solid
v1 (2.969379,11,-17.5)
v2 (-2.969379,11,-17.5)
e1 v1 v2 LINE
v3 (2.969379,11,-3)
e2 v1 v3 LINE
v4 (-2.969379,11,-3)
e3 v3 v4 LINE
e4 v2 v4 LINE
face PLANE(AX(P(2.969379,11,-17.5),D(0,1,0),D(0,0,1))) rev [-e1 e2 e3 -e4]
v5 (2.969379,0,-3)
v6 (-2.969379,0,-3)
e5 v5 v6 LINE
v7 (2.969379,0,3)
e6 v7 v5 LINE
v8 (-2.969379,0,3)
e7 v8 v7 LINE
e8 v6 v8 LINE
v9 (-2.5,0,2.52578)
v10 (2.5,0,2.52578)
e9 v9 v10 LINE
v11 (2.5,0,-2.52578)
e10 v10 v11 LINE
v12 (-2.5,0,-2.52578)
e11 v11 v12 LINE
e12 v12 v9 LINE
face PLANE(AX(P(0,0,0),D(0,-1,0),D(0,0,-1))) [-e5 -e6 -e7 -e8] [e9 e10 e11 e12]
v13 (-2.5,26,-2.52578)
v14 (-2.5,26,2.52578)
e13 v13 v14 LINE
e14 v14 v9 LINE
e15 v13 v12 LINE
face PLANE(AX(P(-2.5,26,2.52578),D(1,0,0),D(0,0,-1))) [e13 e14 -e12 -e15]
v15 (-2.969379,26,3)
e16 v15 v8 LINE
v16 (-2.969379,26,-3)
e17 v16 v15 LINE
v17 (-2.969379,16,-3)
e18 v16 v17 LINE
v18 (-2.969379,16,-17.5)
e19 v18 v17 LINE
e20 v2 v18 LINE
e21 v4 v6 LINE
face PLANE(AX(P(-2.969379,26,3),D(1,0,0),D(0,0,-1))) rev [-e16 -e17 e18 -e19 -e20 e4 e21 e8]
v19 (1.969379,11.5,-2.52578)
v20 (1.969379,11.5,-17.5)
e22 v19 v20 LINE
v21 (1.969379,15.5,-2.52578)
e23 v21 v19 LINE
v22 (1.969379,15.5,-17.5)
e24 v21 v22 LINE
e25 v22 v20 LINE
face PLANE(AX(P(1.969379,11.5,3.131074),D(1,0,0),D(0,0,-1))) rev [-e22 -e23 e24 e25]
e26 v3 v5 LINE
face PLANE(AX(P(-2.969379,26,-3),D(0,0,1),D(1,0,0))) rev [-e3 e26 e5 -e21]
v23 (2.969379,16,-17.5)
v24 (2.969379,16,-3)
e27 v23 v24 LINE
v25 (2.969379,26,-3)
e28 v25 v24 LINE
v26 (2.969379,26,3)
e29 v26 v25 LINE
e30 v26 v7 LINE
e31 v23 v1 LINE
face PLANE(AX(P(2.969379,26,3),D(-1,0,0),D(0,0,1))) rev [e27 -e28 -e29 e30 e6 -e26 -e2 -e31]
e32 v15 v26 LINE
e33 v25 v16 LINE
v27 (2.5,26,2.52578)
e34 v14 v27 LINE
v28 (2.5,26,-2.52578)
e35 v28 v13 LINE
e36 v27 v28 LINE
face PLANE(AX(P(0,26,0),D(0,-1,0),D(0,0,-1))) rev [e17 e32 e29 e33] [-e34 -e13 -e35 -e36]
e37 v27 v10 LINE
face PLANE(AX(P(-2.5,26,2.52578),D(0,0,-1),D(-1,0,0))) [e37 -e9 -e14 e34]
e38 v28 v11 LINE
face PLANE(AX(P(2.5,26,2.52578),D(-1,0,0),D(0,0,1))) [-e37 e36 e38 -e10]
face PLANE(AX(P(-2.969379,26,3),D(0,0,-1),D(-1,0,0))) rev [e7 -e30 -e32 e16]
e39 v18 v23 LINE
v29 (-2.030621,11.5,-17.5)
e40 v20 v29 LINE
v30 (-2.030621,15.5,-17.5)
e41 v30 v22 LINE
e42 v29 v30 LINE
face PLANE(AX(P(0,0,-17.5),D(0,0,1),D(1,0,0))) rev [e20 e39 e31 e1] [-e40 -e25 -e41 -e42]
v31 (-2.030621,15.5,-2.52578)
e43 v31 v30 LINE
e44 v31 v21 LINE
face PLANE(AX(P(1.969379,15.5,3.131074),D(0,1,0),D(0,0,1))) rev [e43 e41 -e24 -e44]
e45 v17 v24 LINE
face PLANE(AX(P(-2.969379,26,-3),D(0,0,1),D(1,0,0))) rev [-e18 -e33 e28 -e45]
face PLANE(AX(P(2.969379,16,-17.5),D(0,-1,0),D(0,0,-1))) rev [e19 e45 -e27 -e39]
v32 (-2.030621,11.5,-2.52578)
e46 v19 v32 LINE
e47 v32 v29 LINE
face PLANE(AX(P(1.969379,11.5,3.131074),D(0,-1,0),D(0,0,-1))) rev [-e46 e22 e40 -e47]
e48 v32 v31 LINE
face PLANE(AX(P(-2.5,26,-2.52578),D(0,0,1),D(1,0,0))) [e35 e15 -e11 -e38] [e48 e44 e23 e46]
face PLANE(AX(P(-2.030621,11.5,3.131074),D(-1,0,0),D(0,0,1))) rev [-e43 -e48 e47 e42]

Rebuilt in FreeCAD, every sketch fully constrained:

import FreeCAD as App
import Part
import Sketcher
from FreeCAD import Vector


def add_polygon(sketch, points):
    """Adds a closed chain of lines whose ends are joined by coincident constraints."""
    first, n = sketch.GeometryCount, len(points)
    for a, b in zip(points, points[1:] + points[:1]):
        sketch.addGeometry(Part.LineSegment(App.Vector(*a, 0), App.Vector(*b, 0)), False)
    for i in range(n):
        sketch.addConstraint(Sketcher.Constraint("Coincident", first + i, 2, first + (i + 1) % n, 1))

doc = App.newDocument("Part")
body = doc.addObject("PartDesign::Body", "Body")

# Sketch on XZ plane
sketch1 = doc.addObject("Sketcher::SketchObject", "Sketch")
body.addObject(sketch1)
sketch1.AttachmentSupport = (doc.XZ_Plane, [""])
sketch1.MapMode = "FlatFace"
add_polygon(sketch1, [(-3, -3), (-3, 3), (3, 3), (3, -3)])  # lines 0-3
add_polygon(sketch1, [(2, 3), (-2, 3), (-2, -3), (2, -3)])  # lines 4-7
sketch1.addConstraint([
    Sketcher.Constraint("Vertical", 0),
    Sketcher.Constraint("Horizontal", 1),
    Sketcher.Constraint("Vertical", 2),
    Sketcher.Constraint("Horizontal", 3),
    Sketcher.Constraint("Horizontal", 4),
    Sketcher.Constraint("Vertical", 5),
    Sketcher.Constraint("Horizontal", 6),
    Sketcher.Constraint("Vertical", 7),
    Sketcher.Constraint("Symmetric", 0, 2, 2, 2, -1, 1),
    Sketcher.Constraint("Symmetric", 4, 2, 6, 2, -1, 1),
    Sketcher.Constraint("DistanceX", 4, 2, 4, 1, 5.0),
    Sketcher.Constraint("DistanceY", 0, 1, 0, 2, 6.0),
    Sketcher.Constraint("DistanceX", 1, 1, 1, 2, 5.938758),
    Sketcher.Constraint("DistanceY", 5, 2, 5, 1, 5.051561),
])
pad1 = doc.addObject("PartDesign::Pad", "Pad")
body.addObject(pad1)
pad1.Profile = sketch1
pad1.Length = 26
pad1.Reversed = True

# Sketch on XY plane
sketch2 = doc.addObject("Sketcher::SketchObject", "Sketch001")
body.addObject(sketch2)
sketch2.AttachmentSupport = (doc.XY_Plane, [""])
sketch2.MapMode = "FlatFace"
sketch2.AttachmentOffset = App.Placement(Vector(0, 0, -3), App.Rotation())
add_polygon(sketch2, [(3, 16), (3, 11), (-3, 11), (-3, 16)])  # lines 0-3
sketch2.addConstraint([
    Sketcher.Constraint("Vertical", 0),
    Sketcher.Constraint("Horizontal", 1),
    Sketcher.Constraint("Vertical", 2),
    Sketcher.Constraint("Horizontal", 3),
    Sketcher.Constraint("DistanceY", 0, 2, 0, 1, 5.0),
    Sketcher.Constraint("DistanceY", -1, 1, 0, 2, 11.0),
    Sketcher.Constraint("DistanceX", 1, 2, 1, 1, 5.938758),
    Sketcher.Constraint("DistanceX", -1, 1, 0, 2, 2.969379),
])
pad2 = doc.addObject("PartDesign::Pad", "Pad001")
body.addObject(pad2)
pad2.Profile = sketch2
pad2.Length = 14.5
pad2.Reversed = True

# Sketch on XY plane
sketch3 = doc.addObject("Sketcher::SketchObject", "Sketch002")
body.addObject(sketch3)
sketch3.AttachmentSupport = (doc.XY_Plane, [""])
sketch3.MapMode = "FlatFace"
sketch3.AttachmentOffset = App.Placement(Vector(0, 0, -17.5), App.Rotation())
add_polygon(sketch3, [(2, 15.5), (2, 11.5), (-2, 11.5), (-2, 15.5)])  # lines 0-3
sketch3.addConstraint([
    Sketcher.Constraint("Vertical", 0),
    Sketcher.Constraint("Horizontal", 1),
    Sketcher.Constraint("Vertical", 2),
    Sketcher.Constraint("Horizontal", 3),
    Sketcher.Constraint("Equal", 3, 0),
    Sketcher.Constraint("DistanceX", 1, 2, 1, 1, 4.0),
    Sketcher.Constraint("DistanceY", -1, 1, 0, 2, 11.5),
    Sketcher.Constraint("DistanceX", -1, 1, 0, 2, 1.969379),
])
pocket1 = doc.addObject("PartDesign::Pocket", "Pocket")
body.addObject(pocket1)
pocket1.Profile = sketch3
pocket1.Length = 14.97422
pocket1.Reversed = True

doc.recompute()
